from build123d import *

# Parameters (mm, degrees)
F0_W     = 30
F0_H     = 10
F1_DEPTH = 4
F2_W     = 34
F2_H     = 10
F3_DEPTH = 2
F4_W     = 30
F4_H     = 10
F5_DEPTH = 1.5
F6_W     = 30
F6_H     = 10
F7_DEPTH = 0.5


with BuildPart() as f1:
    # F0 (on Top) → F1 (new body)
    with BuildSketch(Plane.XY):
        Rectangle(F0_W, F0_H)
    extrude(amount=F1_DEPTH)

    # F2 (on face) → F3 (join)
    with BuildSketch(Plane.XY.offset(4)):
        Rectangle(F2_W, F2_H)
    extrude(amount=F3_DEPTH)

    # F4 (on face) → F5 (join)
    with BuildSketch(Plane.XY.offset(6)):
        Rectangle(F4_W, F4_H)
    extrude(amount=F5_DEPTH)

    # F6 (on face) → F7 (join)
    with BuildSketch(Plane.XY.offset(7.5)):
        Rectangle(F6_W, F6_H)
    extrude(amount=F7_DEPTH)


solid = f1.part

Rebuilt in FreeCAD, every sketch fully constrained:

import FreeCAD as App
import Part
import Sketcher
from FreeCAD import Vector

doc = App.newDocument("Part")
params = doc.addObject("Spreadsheet::Sheet", "Params")
for row, (alias, value) in enumerate([
    ("sketch1_width", "30 mm"),
    ("sketch1_height", "10 mm"),
    ("pad1_length", "4 mm"),
    ("sketch2_width", "34 mm"),
    ("sketch2_height", "10 mm"),
    ("pad2_length", "2 mm"),
    ("sketch3_width", "30 mm"),
    ("sketch3_height", "10 mm"),
    ("pad3_length", "1.5 mm"),
    ("sketch4_width", "30 mm"),
    ("sketch4_height", "10 mm"),
    ("pad4_length", "0.5 mm"),
], start=1):
    params.set(f"A{row}", alias)
    params.set(f"B{row}", "=" + value)
    params.setAlias(f"B{row}", alias)

body = doc.addObject("PartDesign::Body", "Body")

# Sketch on XY plane
sketch1 = body.newObject("Sketcher::SketchObject", "Sketch")
sketch1.AttachmentSupport = (doc.getObject("XY_Plane"), [""])
sketch1.MapMode = "FlatFace"
sketch1.addGeometry(Part.LineSegment(Vector(-15, 5, 0), Vector(-15, -5, 0)), False)
sketch1.addGeometry(Part.LineSegment(Vector(-15, -5, 0), Vector(15, -5, 0)), False)
sketch1.addGeometry(Part.LineSegment(Vector(15, -5, 0), Vector(15, 5, 0)), False)
sketch1.addGeometry(Part.LineSegment(Vector(15, 5, 0), Vector(-15, 5, 0)), False)
sketch1.addConstraint(Sketcher.Constraint("Coincident", 0, 2, 1, 1))
sketch1.addConstraint(Sketcher.Constraint("Coincident", 1, 2, 2, 1))
sketch1.addConstraint(Sketcher.Constraint("Coincident", 2, 2, 3, 1))
sketch1.addConstraint(Sketcher.Constraint("Coincident", 3, 2, 0, 1))
sketch1.addConstraint(Sketcher.Constraint("Vertical", 0))
sketch1.addConstraint(Sketcher.Constraint("Horizontal", 1))
sketch1.addConstraint(Sketcher.Constraint("Vertical", 2))
sketch1.addConstraint(Sketcher.Constraint("Horizontal", 3))
sketch1.addConstraint(Sketcher.Constraint("Symmetric", 0, 2, 2, 2, -1, 1))
sketch1.addConstraint(Sketcher.Constraint("DistanceX", 1, 1, 1, 2, 30.0))
sketch1.addConstraint(Sketcher.Constraint("DistanceY", 0, 2, 0, 1, 10.0))
sketch1.setExpression("Constraints[9]", "Params.sketch1_width")
sketch1.setExpression("Constraints[10]", "Params.sketch1_height")
pad1 = body.newObject("PartDesign::Pad", "Pad")
pad1.Profile = sketch1
pad1.setExpression("Length", "Params.pad1_length")

# Sketch on XY plane
sketch2 = body.newObject("Sketcher::SketchObject", "Sketch001")
sketch2.AttachmentSupport = (doc.getObject("XY_Plane"), [""])
sketch2.MapMode = "FlatFace"
sketch2.AttachmentOffset = App.Placement(Vector(0, 0, 4), App.Rotation())
sketch2.addGeometry(Part.LineSegment(Vector(-17, 5, 0), Vector(-17, -5, 0)), False)
sketch2.addGeometry(Part.LineSegment(Vector(-17, -5, 0), Vector(17, -5, 0)), False)
sketch2.addGeometry(Part.LineSegment(Vector(17, -5, 0), Vector(17, 5, 0)), False)
sketch2.addGeometry(Part.LineSegment(Vector(17, 5, 0), Vector(-17, 5, 0)), False)
sketch2.addConstraint(Sketcher.Constraint("Coincident", 0, 2, 1, 1))
sketch2.addConstraint(Sketcher.Constraint("Coincident", 1, 2, 2, 1))
sketch2.addConstraint(Sketcher.Constraint("Coincident", 2, 2, 3, 1))
sketch2.addConstraint(Sketcher.Constraint("Coincident", 3, 2, 0, 1))
sketch2.addConstraint(Sketcher.Constraint("Vertical", 0))
sketch2.addConstraint(Sketcher.Constraint("Horizontal", 1))
sketch2.addConstraint(Sketcher.Constraint("Vertical", 2))
sketch2.addConstraint(Sketcher.Constraint("Horizontal", 3))
sketch2.addConstraint(Sketcher.Constraint("Symmetric", 0, 2, 2, 2, -1, 1))
sketch2.addConstraint(Sketcher.Constraint("DistanceX", 1, 1, 1, 2, 34.0))
sketch2.addConstraint(Sketcher.Constraint("DistanceY", 0, 2, 0, 1, 10.0))
sketch2.setExpression("Constraints[9]", "Params.sketch2_width")
sketch2.setExpression("Constraints[10]", "Params.sketch2_height")
pad2 = body.newObject("PartDesign::Pad", "Pad001")
pad2.Profile = sketch2
pad2.setExpression("Length", "Params.pad2_length")

# Sketch on XY plane
sketch3 = body.newObject("Sketcher::SketchObject", "Sketch002")
sketch3.AttachmentSupport = (doc.getObject("XY_Plane"), [""])
sketch3.MapMode = "FlatFace"
sketch3.AttachmentOffset = App.Placement(Vector(0, 0, 6), App.Rotation())
sketch3.addGeometry(Part.LineSegment(Vector(-15, 5, 0), Vector(-15, -5, 0)), False)
sketch3.addGeometry(Part.LineSegment(Vector(-15, -5, 0), Vector(15, -5, 0)), False)
sketch3.addGeometry(Part.LineSegment(Vector(15, -5, 0), Vector(15, 5, 0)), False)
sketch3.addGeometry(Part.LineSegment(Vector(15, 5, 0), Vector(-15, 5, 0)), False)
sketch3.addConstraint(Sketcher.Constraint("Coincident", 0, 2, 1, 1))
sketch3.addConstraint(Sketcher.Constraint("Coincident", 1, 2, 2, 1))
sketch3.addConstraint(Sketcher.Constraint("Coincident", 2, 2, 3, 1))
sketch3.addConstraint(Sketcher.Constraint("Coincident", 3, 2, 0, 1))
sketch3.addConstraint(Sketcher.Constraint("Vertical", 0))
sketch3.addConstraint(Sketcher.Constraint("Horizontal", 1))
sketch3.addConstraint(Sketcher.Constraint("Vertical", 2))
sketch3.addConstraint(Sketcher.Constraint("Horizontal", 3))
sketch3.addConstraint(Sketcher.Constraint("Symmetric", 0, 2, 2, 2, -1, 1))
sketch3.addConstraint(Sketcher.Constraint("DistanceX", 1, 1, 1, 2, 30.0))
sketch3.addConstraint(Sketcher.Constraint("DistanceY", 0, 2, 0, 1, 10.0))
sketch3.setExpression("Constraints[9]", "Params.sketch3_width")
sketch3.setExpression("Constraints[10]", "Params.sketch3_height")
pad3 = body.newObject("PartDesign::Pad", "Pad002")
pad3.Profile = sketch3
pad3.setExpression("Length", "Params.pad3_length")

# Sketch on XY plane
sketch4 = body.newObject("Sketcher::SketchObject", "Sketch003")
sketch4.AttachmentSupport = (doc.getObject("XY_Plane"), [""])
sketch4.MapMode = "FlatFace"
sketch4.AttachmentOffset = App.Placement(Vector(0, 0, 7.5), App.Rotation())
sketch4.addGeometry(Part.LineSegment(Vector(-15, 5, 0), Vector(-15, -5, 0)), False)
sketch4.addGeometry(Part.LineSegment(Vector(-15, -5, 0), Vector(15, -5, 0)), False)
sketch4.addGeometry(Part.LineSegment(Vector(15, -5, 0), Vector(15, 5, 0)), False)
sketch4.addGeometry(Part.LineSegment(Vector(15, 5, 0), Vector(-15, 5, 0)), False)
sketch4.addConstraint(Sketcher.Constraint("Coincident", 0, 2, 1, 1))
sketch4.addConstraint(Sketcher.Constraint("Coincident", 1, 2, 2, 1))
sketch4.addConstraint(Sketcher.Constraint("Coincident", 2, 2, 3, 1))
sketch4.addConstraint(Sketcher.Constraint("Coincident", 3, 2, 0, 1))
sketch4.addConstraint(Sketcher.Constraint("Vertical", 0))
sketch4.addConstraint(Sketcher.Constraint("Horizontal", 1))
sketch4.addConstraint(Sketcher.Constraint("Vertical", 2))
sketch4.addConstraint(Sketcher.Constraint("Horizontal", 3))
sketch4.addConstraint(Sketcher.Constraint("Symmetric", 0, 2, 2, 2, -1, 1))
sketch4.addConstraint(Sketcher.Constraint("DistanceX", 1, 1, 1, 2, 30.0))
sketch4.addConstraint(Sketcher.Constraint("DistanceY", 0, 2, 0, 1, 10.0))
sketch4.setExpression("Constraints[9]", "Params.sketch4_width")
sketch4.setExpression("Constraints[10]", "Params.sketch4_height")
pad4 = body.newObject("PartDesign::Pad", "Pad003")
pad4.Profile = sketch4
pad4.setExpression("Length", "Params.pad4_length")

doc.recompute()
